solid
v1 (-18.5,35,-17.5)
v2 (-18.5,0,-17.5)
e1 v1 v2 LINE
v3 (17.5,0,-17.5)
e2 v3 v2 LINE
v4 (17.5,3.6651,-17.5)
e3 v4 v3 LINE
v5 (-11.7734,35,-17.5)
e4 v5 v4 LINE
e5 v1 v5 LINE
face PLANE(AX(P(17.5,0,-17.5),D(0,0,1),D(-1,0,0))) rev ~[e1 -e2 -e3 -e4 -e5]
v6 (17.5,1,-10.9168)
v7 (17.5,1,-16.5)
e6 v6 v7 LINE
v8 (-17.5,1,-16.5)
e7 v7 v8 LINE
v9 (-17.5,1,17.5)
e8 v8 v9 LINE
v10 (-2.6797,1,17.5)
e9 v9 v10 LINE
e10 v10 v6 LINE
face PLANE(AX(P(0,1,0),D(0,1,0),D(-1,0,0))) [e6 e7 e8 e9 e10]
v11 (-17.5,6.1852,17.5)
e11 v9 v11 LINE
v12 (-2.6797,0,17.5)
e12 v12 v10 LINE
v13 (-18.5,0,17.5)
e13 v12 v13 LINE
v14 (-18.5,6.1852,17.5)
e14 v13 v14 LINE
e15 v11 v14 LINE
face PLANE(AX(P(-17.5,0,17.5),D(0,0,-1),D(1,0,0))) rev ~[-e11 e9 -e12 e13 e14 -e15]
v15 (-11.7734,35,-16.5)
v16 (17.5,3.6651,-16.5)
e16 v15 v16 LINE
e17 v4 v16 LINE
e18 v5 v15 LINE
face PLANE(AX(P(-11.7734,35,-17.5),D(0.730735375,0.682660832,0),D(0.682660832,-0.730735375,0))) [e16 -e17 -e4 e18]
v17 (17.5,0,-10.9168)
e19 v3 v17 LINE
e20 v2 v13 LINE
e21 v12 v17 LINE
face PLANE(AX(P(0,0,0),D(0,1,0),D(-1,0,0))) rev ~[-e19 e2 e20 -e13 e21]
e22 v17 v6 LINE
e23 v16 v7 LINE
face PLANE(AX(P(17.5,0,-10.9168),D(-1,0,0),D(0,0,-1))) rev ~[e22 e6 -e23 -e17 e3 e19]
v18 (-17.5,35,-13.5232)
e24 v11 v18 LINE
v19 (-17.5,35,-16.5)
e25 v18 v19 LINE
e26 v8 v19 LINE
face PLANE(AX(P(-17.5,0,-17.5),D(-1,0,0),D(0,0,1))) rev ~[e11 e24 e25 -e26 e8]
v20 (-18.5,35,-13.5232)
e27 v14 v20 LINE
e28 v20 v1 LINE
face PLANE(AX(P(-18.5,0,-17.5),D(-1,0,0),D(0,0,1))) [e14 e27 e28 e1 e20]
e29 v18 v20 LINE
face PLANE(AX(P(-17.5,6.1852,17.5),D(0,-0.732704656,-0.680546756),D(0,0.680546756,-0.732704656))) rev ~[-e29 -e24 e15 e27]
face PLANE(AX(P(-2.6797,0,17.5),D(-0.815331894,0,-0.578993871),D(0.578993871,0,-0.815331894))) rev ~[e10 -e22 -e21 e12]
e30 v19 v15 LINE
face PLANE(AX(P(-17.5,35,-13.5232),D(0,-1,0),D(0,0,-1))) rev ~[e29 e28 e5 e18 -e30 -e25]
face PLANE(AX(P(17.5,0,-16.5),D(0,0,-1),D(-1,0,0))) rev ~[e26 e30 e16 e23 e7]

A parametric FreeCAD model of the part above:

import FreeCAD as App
import Part
import Sketcher
from FreeCAD import Vector
Q = App.Units.Quantity

doc = App.newDocument("Part")
body = doc.addObject("PartDesign::Body", "Body")

# Sketch on XZ plane
sketch1 = body.newObject("Sketcher::SketchObject", "Sketch")
sketch1.AttachmentSupport = (doc.getObject("XZ_Plane"), [""])
sketch1.MapMode = "FlatFace"
sketch1.addGeometry([
    Part.LineSegment(Vector(-18, -18, 0), Vector(-18, 18, 0)),  # 0
    Part.LineSegment(Vector(-18, 18, 0), Vector(-3, 18, 0)),  # 1
    Part.LineSegment(Vector(-3, 18, 0), Vector(18, -11, 0)),  # 2
    Part.LineSegment(Vector(18, -11, 0), Vector(18, -18, 0)),  # 3
    Part.LineSegment(Vector(18, -18, 0), Vector(-18, -18, 0)),  # 4
], False)
sketch1.addConstraint([
    Sketcher.Constraint("Coincident", 0, 2, 1, 1),
    Sketcher.Constraint("Coincident", 1, 2, 2, 1),
    Sketcher.Constraint("Coincident", 2, 2, 3, 1),
    Sketcher.Constraint("Coincident", 3, 2, 4, 1),
    Sketcher.Constraint("Coincident", 4, 2, 0, 1),
    Sketcher.Constraint("Vertical", 0),
    Sketcher.Constraint("Horizontal", 1),
    Sketcher.Constraint("Vertical", 3),
    Sketcher.Constraint("Horizontal", 4),
    Sketcher.Constraint("Symmetric", 0, 2, 3, 2, -1, 1),
    Sketcher.Constraint("Equal", 4, 0),
    Sketcher.Constraint("DistanceX", 4, 2, 4, 1, Q("35 mm")),
    Sketcher.Constraint("Angle", 2, Q("-54.6202 deg")),
    Sketcher.Constraint("Distance", 2, Q("34.853 mm")),
])
pad1 = body.newObject("PartDesign::Pad", "Pad")
pad1.Profile = sketch1
pad1.Length = 1
pad1.Reversed = True

# Sketch on YZ plane
sketch2 = body.newObject("Sketcher::SketchObject", "Sketch001")
sketch2.AttachmentSupport = (doc.getObject("YZ_Plane"), [""])
sketch2.MapMode = "FlatFace"
sketch2.AttachmentOffset = App.Placement(Vector(0, 0, -17.5), App.Rotation())
sketch2.addGeometry([
    Part.LineSegment(Vector(0, -17.5, 0), Vector(0, 17.5, 0)),  # 0
    Part.LineSegment(Vector(0, 17.5, 0), Vector(6.2, 17.5, 0)),  # 1
    Part.LineSegment(Vector(6.2, 17.5, 0), Vector(35, -13.5, 0)),  # 2
    Part.LineSegment(Vector(35, -13.5, 0), Vector(35, -17.5, 0)),  # 3
    Part.LineSegment(Vector(35, -17.5, 0), Vector(0, -17.5, 0)),  # 4
], False)
sketch2.addConstraint([
    Sketcher.Constraint("Coincident", 0, 2, 1, 1),
    Sketcher.Constraint("Coincident", 1, 2, 2, 1),
    Sketcher.Constraint("Coincident", 2, 2, 3, 1),
    Sketcher.Constraint("Coincident", 3, 2, 4, 1),
    Sketcher.Constraint("Coincident", 4, 2, 0, 1),
    Sketcher.Constraint("Vertical", 0),
    Sketcher.Constraint("Horizontal", 1),
    Sketcher.Constraint("Vertical", 3),
    Sketcher.Constraint("Horizontal", 4),
    Sketcher.Constraint("Symmetric", 0, 2, 4, 2, -1, 1),
    Sketcher.Constraint("Equal", 4, 0),
    Sketcher.Constraint("DistanceX", 4, 2, 4, 1, Q("35 mm")),
    Sketcher.Constraint("DistanceX", 1, 1, 1, 2, Q("6.1852 mm")),
    Sketcher.Constraint("DistanceY", 3, 2, 3, 1, Q("3.9768 mm")),
])
pad2 = body.newObject("PartDesign::Pad", "Pad001")
pad2.Profile = sketch2
pad2.Length = 1
pad2.Reversed = True

# Sketch on XY plane
sketch3 = body.newObject("Sketcher::SketchObject", "Sketch002")
sketch3.AttachmentSupport = (doc.getObject("XY_Plane"), [""])
sketch3.MapMode = "FlatFace"
sketch3.AttachmentOffset = App.Placement(Vector(0, 0, -17.5), App.Rotation())
sketch3.addGeometry([
    Part.LineSegment(Vector(17.5, 0, 0), Vector(-17.5, 0, 0)),  # 0
    Part.LineSegment(Vector(-17.5, 0, 0), Vector(-17.5, 35, 0)),  # 1
    Part.LineSegment(Vector(-17.5, 35, 0), Vector(-11.8, 35, 0)),  # 2
    Part.LineSegment(Vector(-11.8, 35, 0), Vector(17.5, 3.7, 0)),  # 3
    Part.LineSegment(Vector(17.5, 3.7, 0), Vector(17.5, 0, 0)),  # 4
], False)
sketch3.addConstraint([
    Sketcher.Constraint("Coincident", 0, 2, 1, 1),
    Sketcher.Constraint("Coincident", 1, 2, 2, 1),
    Sketcher.Constraint("Coincident", 2, 2, 3, 1),
    Sketcher.Constraint("Coincident", 3, 2, 4, 1),
    Sketcher.Constraint("Coincident", 4, 2, 0, 1),
    Sketcher.Constraint("Horizontal", 0),
    Sketcher.Constraint("Vertical", 1),
    Sketcher.Constraint("Horizontal", 2),
    Sketcher.Constraint("Vertical", 4),
    Sketcher.Constraint("Symmetric", 0, 2, 4, 2, -1, 1),
    Sketcher.Constraint("Equal", 0, 1),
    Sketcher.Constraint("DistanceX", 0, 2, 0, 1, Q("35 mm")),
    Sketcher.Constraint("DistanceY", 4, 2, 4, 1, Q("3.665 mm")),
    Sketcher.Constraint("DistanceX", 2, 1, 2, 2, Q("5.7266 mm")),
])
pad3 = body.newObject("PartDesign::Pad", "Pad002")
pad3.Profile = sketch3
pad3.Length = 1

doc.recompute()
